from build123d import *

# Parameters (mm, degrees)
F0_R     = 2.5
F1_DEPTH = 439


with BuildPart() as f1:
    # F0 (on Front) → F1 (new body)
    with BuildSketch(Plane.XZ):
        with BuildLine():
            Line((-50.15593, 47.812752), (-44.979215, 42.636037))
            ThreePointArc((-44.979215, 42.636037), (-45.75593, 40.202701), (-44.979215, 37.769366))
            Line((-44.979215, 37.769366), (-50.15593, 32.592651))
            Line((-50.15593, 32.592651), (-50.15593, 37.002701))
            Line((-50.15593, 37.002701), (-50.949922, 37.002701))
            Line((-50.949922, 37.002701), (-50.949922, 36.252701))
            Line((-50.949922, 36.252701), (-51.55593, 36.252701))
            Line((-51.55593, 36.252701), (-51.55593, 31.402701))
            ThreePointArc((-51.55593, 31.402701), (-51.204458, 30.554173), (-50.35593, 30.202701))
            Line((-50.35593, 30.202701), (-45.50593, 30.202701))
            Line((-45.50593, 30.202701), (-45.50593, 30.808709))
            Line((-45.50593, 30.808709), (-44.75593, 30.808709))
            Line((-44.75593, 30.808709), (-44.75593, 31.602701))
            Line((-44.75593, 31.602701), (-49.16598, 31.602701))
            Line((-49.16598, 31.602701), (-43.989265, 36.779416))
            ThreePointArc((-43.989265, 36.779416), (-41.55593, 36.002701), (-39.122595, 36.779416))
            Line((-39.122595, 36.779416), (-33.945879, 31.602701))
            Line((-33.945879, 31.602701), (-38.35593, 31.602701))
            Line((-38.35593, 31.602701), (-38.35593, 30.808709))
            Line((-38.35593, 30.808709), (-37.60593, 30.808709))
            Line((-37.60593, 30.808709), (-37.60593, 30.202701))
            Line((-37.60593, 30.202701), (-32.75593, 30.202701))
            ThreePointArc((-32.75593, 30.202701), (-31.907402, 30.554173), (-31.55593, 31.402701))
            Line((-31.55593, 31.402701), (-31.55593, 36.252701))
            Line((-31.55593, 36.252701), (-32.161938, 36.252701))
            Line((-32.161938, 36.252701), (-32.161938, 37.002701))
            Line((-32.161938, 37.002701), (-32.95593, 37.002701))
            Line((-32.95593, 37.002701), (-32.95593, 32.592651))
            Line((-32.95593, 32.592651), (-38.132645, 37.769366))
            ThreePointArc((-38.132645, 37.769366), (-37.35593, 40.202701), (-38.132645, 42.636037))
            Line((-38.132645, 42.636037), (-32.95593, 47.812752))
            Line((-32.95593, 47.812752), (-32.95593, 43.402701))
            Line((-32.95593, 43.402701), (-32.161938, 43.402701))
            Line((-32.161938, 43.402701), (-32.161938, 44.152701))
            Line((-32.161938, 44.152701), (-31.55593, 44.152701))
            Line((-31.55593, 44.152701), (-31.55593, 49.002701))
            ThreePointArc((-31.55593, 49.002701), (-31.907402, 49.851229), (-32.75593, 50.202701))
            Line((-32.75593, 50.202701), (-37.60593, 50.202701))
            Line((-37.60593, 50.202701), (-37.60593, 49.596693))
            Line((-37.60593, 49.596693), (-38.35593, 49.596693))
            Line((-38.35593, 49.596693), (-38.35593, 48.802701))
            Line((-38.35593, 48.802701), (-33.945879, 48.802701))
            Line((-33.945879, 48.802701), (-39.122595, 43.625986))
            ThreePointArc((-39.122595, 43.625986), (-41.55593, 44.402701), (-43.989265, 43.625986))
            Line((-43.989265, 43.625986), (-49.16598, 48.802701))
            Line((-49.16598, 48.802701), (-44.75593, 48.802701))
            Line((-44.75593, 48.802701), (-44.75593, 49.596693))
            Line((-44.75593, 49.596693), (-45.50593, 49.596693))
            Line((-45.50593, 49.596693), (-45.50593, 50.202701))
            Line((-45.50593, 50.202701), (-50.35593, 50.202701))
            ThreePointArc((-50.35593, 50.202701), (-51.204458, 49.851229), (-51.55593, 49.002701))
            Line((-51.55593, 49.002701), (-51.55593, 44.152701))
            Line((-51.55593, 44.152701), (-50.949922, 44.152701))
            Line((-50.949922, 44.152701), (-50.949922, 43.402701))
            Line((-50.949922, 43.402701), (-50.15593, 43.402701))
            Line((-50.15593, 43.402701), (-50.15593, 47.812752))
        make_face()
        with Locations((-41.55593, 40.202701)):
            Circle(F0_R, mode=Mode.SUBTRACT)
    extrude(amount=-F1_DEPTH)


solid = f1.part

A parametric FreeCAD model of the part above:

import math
import FreeCAD as App
import Part
import Sketcher

V = App.Vector

doc = App.newDocument("Part")
params = doc.addObject("Spreadsheet::Sheet", "Params")
for row, (alias, value) in enumerate([
    ("sketch1_diameter", "5 mm"),
    ("sketch1_radius", "4.200001 mm"),
    ("sketch1_radius2", "1.2 mm"),
    ("sketch1_width", "4.85 mm"),
    ("sketch1_width2", "0.75 mm"),
    ("pad1_length", "439 mm"),
], start=1):
    params.set(f"A{row}", alias)
    params.set(f"B{row}", "=" + value)
    params.setAlias(f"B{row}", alias)

body = doc.addObject("PartDesign::Body", "Body")

sketch1 = doc.addObject("Sketcher::SketchObject", "Sketch")
body.addObject(sketch1)
sketch1.AttachmentSupport = (doc.XZ_Plane, [""])
sketch1.MapMode = "FlatFace"
sketch1.addGeometry([
    Part.LineSegment(V(-50.15593, 47.812752, 0), V(-44.979215, 42.636037, 0)),
    Part.ArcOfCircle(Part.Circle(V(-41.555929, 40.202702, 0), V(0, 0, 1), 4.200001), math.radians(144.594077), math.radians(215.405923)),
    Part.LineSegment(V(-44.979215, 37.769366, 0), V(-50.15593, 32.592651, 0)),
    Part.LineSegment(V(-50.15593, 32.592651, 0), V(-50.15593, 37.002701, 0)),
    Part.LineSegment(V(-50.15593, 37.002701, 0), V(-50.949922, 37.002701, 0)),
    Part.LineSegment(V(-50.949922, 37.002701, 0), V(-50.949922, 36.252701, 0)),
    Part.LineSegment(V(-50.949922, 36.252701, 0), V(-51.55593, 36.252701, 0)),
    Part.LineSegment(V(-51.55593, 36.252701, 0), V(-51.55593, 31.402701, 0)),
    Part.ArcOfCircle(Part.Circle(V(-50.35593, 31.402701, 0), V(0, 0, 1), 1.2), math.radians(-179.999978), math.radians(-90.000022)),
    Part.LineSegment(V(-50.35593, 30.202701, 0), V(-45.50593, 30.202701, 0)),
    Part.LineSegment(V(-45.50593, 30.202701, 0), V(-45.50593, 30.808709, 0)),
    Part.LineSegment(V(-45.50593, 30.808709, 0), V(-44.75593, 30.808709, 0)),
    Part.LineSegment(V(-44.75593, 30.808709, 0), V(-44.75593, 31.602701, 0)),
    Part.LineSegment(V(-44.75593, 31.602701, 0), V(-49.16598, 31.602701, 0)),
    Part.LineSegment(V(-49.16598, 31.602701, 0), V(-43.989265, 36.779416, 0)),
    Part.ArcOfCircle(Part.Circle(V(-41.55593, 40.202701, 0), V(0, 0, 1), 4.2), math.radians(-125.40593), math.radians(-54.59407)),
    Part.LineSegment(V(-39.122595, 36.779416, 0), V(-33.945879, 31.602701, 0)),
    Part.LineSegment(V(-33.945879, 31.602701, 0), V(-38.35593, 31.602701, 0)),
    Part.LineSegment(V(-38.35593, 31.602701, 0), V(-38.35593, 30.808709, 0)),
    Part.LineSegment(V(-38.35593, 30.808709, 0), V(-37.60593, 30.808709, 0)),
    Part.LineSegment(V(-37.60593, 30.808709, 0), V(-37.60593, 30.202701, 0)),
    Part.LineSegment(V(-37.60593, 30.202701, 0), V(-32.75593, 30.202701, 0)),
    Part.ArcOfCircle(Part.Circle(V(-32.75593, 31.402701, 0), V(0, 0, 1), 1.2), math.radians(-89.999978), math.radians(-0.000022)),
    Part.LineSegment(V(-31.55593, 31.402701, 0), V(-31.55593, 36.252701, 0)),
    Part.LineSegment(V(-31.55593, 36.252701, 0), V(-32.161938, 36.252701, 0)),
    Part.LineSegment(V(-32.161938, 36.252701, 0), V(-32.161938, 37.002701, 0)),
    Part.LineSegment(V(-32.161938, 37.002701, 0), V(-32.95593, 37.002701, 0)),
    Part.LineSegment(V(-32.95593, 37.002701, 0), V(-32.95593, 32.592651, 0)),
    Part.LineSegment(V(-32.95593, 32.592651, 0), V(-38.132645, 37.769366, 0)),
    Part.ArcOfCircle(Part.Circle(V(-41.555931, 40.202702, 0), V(0, 0, 1), 4.200001), math.radians(-35.405923), math.radians(35.405923)),
    Part.LineSegment(V(-38.132645, 42.636037, 0), V(-32.95593, 47.812752, 0)),
    Part.LineSegment(V(-32.95593, 47.812752, 0), V(-32.95593, 43.402701, 0)),
    Part.LineSegment(V(-32.95593, 43.402701, 0), V(-32.161938, 43.402701, 0)),
    Part.LineSegment(V(-32.161938, 43.402701, 0), V(-32.161938, 44.152701, 0)),
    Part.LineSegment(V(-32.161938, 44.152701, 0), V(-31.55593, 44.152701, 0)),
    Part.LineSegment(V(-31.55593, 44.152701, 0), V(-31.55593, 49.002701, 0)),
    Part.ArcOfCircle(Part.Circle(V(-32.75593, 49.002701, 0), V(0, 0, 1), 1.2), math.radians(0.000022), math.radians(89.999978)),
    Part.LineSegment(V(-32.75593, 50.202701, 0), V(-37.60593, 50.202701, 0)),
    Part.LineSegment(V(-37.60593, 50.202701, 0), V(-37.60593, 49.596693, 0)),
    Part.LineSegment(V(-37.60593, 49.596693, 0), V(-38.35593, 49.596693, 0)),
    Part.LineSegment(V(-38.35593, 49.596693, 0), V(-38.35593, 48.802701, 0)),
    Part.LineSegment(V(-38.35593, 48.802701, 0), V(-33.945879, 48.802701, 0)),
    Part.LineSegment(V(-33.945879, 48.802701, 0), V(-39.122595, 43.625986, 0)),
    Part.ArcOfCircle(Part.Circle(V(-41.55593, 40.202701, 0), V(0, 0, 1), 4.2), math.radians(54.59407), math.radians(125.40593)),
    Part.LineSegment(V(-43.989265, 43.625986, 0), V(-49.16598, 48.802701, 0)),
    Part.LineSegment(V(-49.16598, 48.802701, 0), V(-44.75593, 48.802701, 0)),
    Part.LineSegment(V(-44.75593, 48.802701, 0), V(-44.75593, 49.596693, 0)),
    Part.LineSegment(V(-44.75593, 49.596693, 0), V(-45.50593, 49.596693, 0)),
    Part.LineSegment(V(-45.50593, 49.596693, 0), V(-45.50593, 50.202701, 0)),
    Part.LineSegment(V(-45.50593, 50.202701, 0), V(-50.35593, 50.202701, 0)),
    Part.ArcOfCircle(Part.Circle(V(-50.35593, 49.002701, 0), V(0, 0, 1), 1.2), math.radians(90.000022), math.radians(179.999978)),
    Part.LineSegment(V(-51.55593, 49.002701, 0), V(-51.55593, 44.152701, 0)),
    Part.LineSegment(V(-51.55593, 44.152701, 0), V(-50.949922, 44.152701, 0)),
    Part.LineSegment(V(-50.949922, 44.152701, 0), V(-50.949922, 43.402701, 0)),
    Part.LineSegment(V(-50.949922, 43.402701, 0), V(-50.15593, 43.402701, 0)),
    Part.LineSegment(V(-50.15593, 43.402701, 0), V(-50.15593, 47.812752, 0)),
    Part.Circle(V(-41.55593, 40.202701, 0), V(0, 0, 1), 2.5),
], False)
sketch1.addConstraint([
    Sketcher.Constraint("Coincident", 0, 2, 1, 1),
    Sketcher.Constraint("Coincident", 1, 2, 2, 1),
    Sketcher.Constraint("Coincident", 2, 2, 3, 1),
    Sketcher.Constraint("Coincident", 3, 2, 4, 1),
    Sketcher.Constraint("Coincident", 4, 2, 5, 1),
    Sketcher.Constraint("Coincident", 5, 2, 6, 1),
    Sketcher.Constraint("Coincident", 6, 2, 7, 1),
    Sketcher.Constraint("Tangent", 7, 2, 8, 1),
    Sketcher.Constraint("Tangent", 8, 2, 9, 1),
    Sketcher.Constraint("Coincident", 9, 2, 10, 1),
    Sketcher.Constraint("Coincident", 10, 2, 11, 1),
    Sketcher.Constraint("Coincident", 11, 2, 12, 1),
    Sketcher.Constraint("Coincident", 12, 2, 13, 1),
    Sketcher.Constraint("Coincident", 13, 2, 14, 1),
    Sketcher.Constraint("Coincident", 14, 2, 15, 1),
    Sketcher.Constraint("Coincident", 15, 2, 16, 1),
    Sketcher.Constraint("Coincident", 16, 2, 17, 1),
    Sketcher.Constraint("Coincident", 17, 2, 18, 1),
    Sketcher.Constraint("Coincident", 18, 2, 19, 1),
    Sketcher.Constraint("Coincident", 19, 2, 20, 1),
    Sketcher.Constraint("Coincident", 20, 2, 21, 1),
    Sketcher.Constraint("Tangent", 21, 2, 22, 1),
    Sketcher.Constraint("Tangent", 22, 2, 23, 1),
    Sketcher.Constraint("Coincident", 23, 2, 24, 1),
    Sketcher.Constraint("Coincident", 24, 2, 25, 1),
    Sketcher.Constraint("Coincident", 25, 2, 26, 1),
    Sketcher.Constraint("Coincident", 26, 2, 27, 1),
    Sketcher.Constraint("Coincident", 27, 2, 28, 1),
    Sketcher.Constraint("Coincident", 28, 2, 29, 1),
    Sketcher.Constraint("Coincident", 29, 2, 30, 1),
    Sketcher.Constraint("Coincident", 30, 2, 31, 1),
    Sketcher.Constraint("Coincident", 31, 2, 32, 1),
    Sketcher.Constraint("Coincident", 32, 2, 33, 1),
    Sketcher.Constraint("Coincident", 33, 2, 34, 1),
    Sketcher.Constraint("Coincident", 34, 2, 35, 1),
    Sketcher.Constraint("Tangent", 35, 2, 36, 1),
    Sketcher.Constraint("Tangent", 36, 2, 37, 1),
    Sketcher.Constraint("Coincident", 37, 2, 38, 1),
    Sketcher.Constraint("Coincident", 38, 2, 39, 1),
    Sketcher.Constraint("Coincident", 39, 2, 40, 1),
    Sketcher.Constraint("Coincident", 40, 2, 41, 1),
    Sketcher.Constraint("Coincident", 41, 2, 42, 1),
    Sketcher.Constraint("Coincident", 42, 2, 43, 1),
    Sketcher.Constraint("Coincident", 43, 2, 44, 1),
    Sketcher.Constraint("Coincident", 44, 2, 45, 1),
    Sketcher.Constraint("Coincident", 45, 2, 46, 1),
    Sketcher.Constraint("Coincident", 46, 2, 47, 1),
    Sketcher.Constraint("Coincident", 47, 2, 48, 1),
    Sketcher.Constraint("Coincident", 48, 2, 49, 1),
    Sketcher.Constraint("Tangent", 49, 2, 50, 1),
    Sketcher.Constraint("Tangent", 50, 2, 51, 1),
    Sketcher.Constraint("Coincident", 51, 2, 52, 1),
    Sketcher.Constraint("Coincident", 52, 2, 53, 1),
    Sketcher.Constraint("Coincident", 53, 2, 54, 1),
    Sketcher.Constraint("Coincident", 54, 2, 55, 1),
    Sketcher.Constraint("Coincident", 55, 2, 0, 1),
    Sketcher.Constraint("Vertical", 3),
    Sketcher.Constraint("Horizontal", 4),
    Sketcher.Constraint("Vertical", 5),
    Sketcher.Constraint("Horizontal", 6),
    Sketcher.Constraint("Vertical", 7),
    Sketcher.Constraint("Horizontal", 9),
    Sketcher.Constraint("Vertical", 10),
    Sketcher.Constraint("Horizontal", 11),
    Sketcher.Constraint("Vertical", 12),
    Sketcher.Constraint("Horizontal", 13),
    Sketcher.Constraint("Horizontal", 17),
    Sketcher.Constraint("Vertical", 18),
    Sketcher.Constraint("Horizontal", 19),
    Sketcher.Constraint("Vertical", 20),
    Sketcher.Constraint("Horizontal", 21),
    Sketcher.Constraint("Vertical", 23),
    Sketcher.Constraint("Horizontal", 24),
    Sketcher.Constraint("Vertical", 25),
    Sketcher.Constraint("Horizontal", 26),
    Sketcher.Constraint("Vertical", 27),
    Sketcher.Constraint("Vertical", 31),
    Sketcher.Constraint("Horizontal", 32),
    Sketcher.Constraint("Vertical", 33),
    Sketcher.Constraint("Horizontal", 34),
    Sketcher.Constraint("Vertical", 35),
    Sketcher.Constraint("Horizontal", 37),
    Sketcher.Constraint("Vertical", 38),
    Sketcher.Constraint("Horizontal", 39),
    Sketcher.Constraint("Vertical", 40),
    Sketcher.Constraint("Horizontal", 41),
    Sketcher.Constraint("Horizontal", 45),
    Sketcher.Constraint("Vertical", 46),
    Sketcher.Constraint("Horizontal", 47),
    Sketcher.Constraint("Vertical", 48),
    Sketcher.Constraint("Horizontal", 49),
    Sketcher.Constraint("Vertical", 51),
    Sketcher.Constraint("Horizontal", 52),
    Sketcher.Constraint("Vertical", 53),
    Sketcher.Constraint("Horizontal", 54),
    Sketcher.Constraint("Vertical", 55),
    Sketcher.Constraint("Coincident", 15, 3, 1, 3),
    Sketcher.Constraint("Coincident", 29, 3, 1, 3),
    Sketcher.Constraint("Coincident", 43, 3, 1, 3),
    Sketcher.Constraint("Coincident", 56, 3, 1, 3),
    Sketcher.Constraint("Equal", 1, 15),
    Sketcher.Constraint("Equal", 8, 22),
    Sketcher.Constraint("Equal", 15, 29),
    Sketcher.Constraint("Equal", 22, 36),
    Sketcher.Constraint("Equal", 29, 43),
    Sketcher.Constraint("Equal", 36, 50),
    Sketcher.Constraint("Perpendicular", 0, 2),
    Sketcher.Constraint("Parallel", 2, 14),
    Sketcher.Constraint("Perpendicular", 14, 16),
    Sketcher.Constraint("Parallel", 16, 28),
    Sketcher.Constraint("Perpendicular", 28, 30),
    Sketcher.Constraint("Parallel", 30, 42),
    Sketcher.Constraint("Perpendicular", 42, 44),
    Sketcher.Constraint("Horizontal", 8, 3, 22, 3),
    Sketcher.Constraint("Horizontal", 36, 3, 50, 3),
    Sketcher.Constraint("Horizontal", 14, 2, 15, 2),
    Sketcher.Constraint("Horizontal", 13, 2, 16, 2),
    Sketcher.Constraint("Horizontal", 11, 2, 18, 2),
    Sketcher.Constraint("Horizontal", 6, 2, 23, 2),
    Sketcher.Constraint("Horizontal", 4, 2, 25, 2),
    Sketcher.Constraint("Horizontal", 2, 2, 27, 2),
    Sketcher.Constraint("Horizontal", 1, 2, 28, 2),
    Sketcher.Constraint("Horizontal", 0, 2, 29, 2),
    Sketcher.Constraint("Horizontal", 42, 2, 43, 2),
    Sketcher.Constraint("Horizontal", 41, 2, 44, 2),
    Sketcher.Constraint("Horizontal", 39, 2, 46, 2),
    Sketcher.Constraint("Horizontal", 34, 2, 51, 2),
    Sketcher.Constraint("Horizontal", 32, 2, 53, 2),
    Sketcher.Constraint("Horizontal", 30, 2, 55, 2),
    Sketcher.Constraint("Vertical", 22, 3, 36, 3),
    Sketcher.Constraint("Vertical", 8, 3, 50, 3),
    Sketcher.Constraint("Vertical", 0, 2, 1, 2),
    Sketcher.Constraint("Vertical", 27, 2, 30, 2),
    Sketcher.Constraint("Vertical", 25, 2, 32, 2),
    Sketcher.Constraint("Vertical", 20, 2, 37, 2),
    Sketcher.Constraint("Vertical", 18, 2, 39, 2),
    Sketcher.Constraint("Vertical", 16, 2, 41, 2),
    Sketcher.Constraint("Vertical", 15, 2, 42, 2),
    Sketcher.Constraint("Vertical", 13, 2, 44, 2),
    Sketcher.Constraint("Vertical", 12, 2, 45, 2),
    Sketcher.Constraint("Vertical", 10, 2, 47, 2),
    Sketcher.Constraint("Vertical", 5, 2, 52, 2),
    Sketcher.Constraint("Equal", 13, 17),
    Sketcher.Constraint("Equal", 11, 19),
    Sketcher.Constraint("Equal", 9, 21),
    Sketcher.Constraint("Equal", 6, 24),
    Sketcher.Constraint("Equal", 45, 3),
    Sketcher.Constraint("Equal", 47, 5),
    Sketcher.Constraint("Equal", 49, 7),
    Sketcher.Constraint("Equal", 52, 10),
    Sketcher.Constraint("Equal", 54, 12),
    Sketcher.Constraint("Equal", 27, 31),
    Sketcher.Constraint("Equal", 25, 33),
    Sketcher.Constraint("Equal", 23, 35),
    Sketcher.Constraint("Equal", 20, 38),
    Sketcher.Constraint("Equal", 2, 14),
    Sketcher.Constraint("Diameter", 56, 5.0),
    Sketcher.Constraint("Radius", 1, 4.200001),
    Sketcher.Constraint("Radius", 8, 1.2),
    Sketcher.Constraint("DistanceX", 9, 1, 9, 2, 4.85),
    Sketcher.Constraint("DistanceX", 11, 1, 11, 2, 0.75),
    Sketcher.Constraint("DistanceX", 13, 2, 13, 1, 4.41005),
    Sketcher.Constraint("DistanceY", 12, 1, 12, 2, 0.793992),
    Sketcher.Constraint("DistanceY", -1, 1, 1, 3, 40.202702),
    Sketcher.Constraint("DistanceY", -1, 1, 8, 3, 31.402701),
    Sketcher.Constraint("DistanceY", -1, 1, 12, 2, 31.602701),
    Sketcher.Constraint("DistanceX", 1, 3, -1, 1, 41.555929),
])
sketch1.setExpression("Constraints[156]", "Params.sketch1_diameter")
sketch1.setExpression("Constraints[157]", "Params.sketch1_radius")
sketch1.setExpression("Constraints[158]", "Params.sketch1_radius2")
sketch1.setExpression("Constraints[159]", "Params.sketch1_width")
sketch1.setExpression("Constraints[160]", "Params.sketch1_width2")
pad1 = doc.addObject("PartDesign::Pad", "Pad")
body.addObject(pad1)
pad1.Profile = sketch1
pad1.setExpression("Length", "Params.pad1_length")
pad1.Reversed = True

doc.recompute()
